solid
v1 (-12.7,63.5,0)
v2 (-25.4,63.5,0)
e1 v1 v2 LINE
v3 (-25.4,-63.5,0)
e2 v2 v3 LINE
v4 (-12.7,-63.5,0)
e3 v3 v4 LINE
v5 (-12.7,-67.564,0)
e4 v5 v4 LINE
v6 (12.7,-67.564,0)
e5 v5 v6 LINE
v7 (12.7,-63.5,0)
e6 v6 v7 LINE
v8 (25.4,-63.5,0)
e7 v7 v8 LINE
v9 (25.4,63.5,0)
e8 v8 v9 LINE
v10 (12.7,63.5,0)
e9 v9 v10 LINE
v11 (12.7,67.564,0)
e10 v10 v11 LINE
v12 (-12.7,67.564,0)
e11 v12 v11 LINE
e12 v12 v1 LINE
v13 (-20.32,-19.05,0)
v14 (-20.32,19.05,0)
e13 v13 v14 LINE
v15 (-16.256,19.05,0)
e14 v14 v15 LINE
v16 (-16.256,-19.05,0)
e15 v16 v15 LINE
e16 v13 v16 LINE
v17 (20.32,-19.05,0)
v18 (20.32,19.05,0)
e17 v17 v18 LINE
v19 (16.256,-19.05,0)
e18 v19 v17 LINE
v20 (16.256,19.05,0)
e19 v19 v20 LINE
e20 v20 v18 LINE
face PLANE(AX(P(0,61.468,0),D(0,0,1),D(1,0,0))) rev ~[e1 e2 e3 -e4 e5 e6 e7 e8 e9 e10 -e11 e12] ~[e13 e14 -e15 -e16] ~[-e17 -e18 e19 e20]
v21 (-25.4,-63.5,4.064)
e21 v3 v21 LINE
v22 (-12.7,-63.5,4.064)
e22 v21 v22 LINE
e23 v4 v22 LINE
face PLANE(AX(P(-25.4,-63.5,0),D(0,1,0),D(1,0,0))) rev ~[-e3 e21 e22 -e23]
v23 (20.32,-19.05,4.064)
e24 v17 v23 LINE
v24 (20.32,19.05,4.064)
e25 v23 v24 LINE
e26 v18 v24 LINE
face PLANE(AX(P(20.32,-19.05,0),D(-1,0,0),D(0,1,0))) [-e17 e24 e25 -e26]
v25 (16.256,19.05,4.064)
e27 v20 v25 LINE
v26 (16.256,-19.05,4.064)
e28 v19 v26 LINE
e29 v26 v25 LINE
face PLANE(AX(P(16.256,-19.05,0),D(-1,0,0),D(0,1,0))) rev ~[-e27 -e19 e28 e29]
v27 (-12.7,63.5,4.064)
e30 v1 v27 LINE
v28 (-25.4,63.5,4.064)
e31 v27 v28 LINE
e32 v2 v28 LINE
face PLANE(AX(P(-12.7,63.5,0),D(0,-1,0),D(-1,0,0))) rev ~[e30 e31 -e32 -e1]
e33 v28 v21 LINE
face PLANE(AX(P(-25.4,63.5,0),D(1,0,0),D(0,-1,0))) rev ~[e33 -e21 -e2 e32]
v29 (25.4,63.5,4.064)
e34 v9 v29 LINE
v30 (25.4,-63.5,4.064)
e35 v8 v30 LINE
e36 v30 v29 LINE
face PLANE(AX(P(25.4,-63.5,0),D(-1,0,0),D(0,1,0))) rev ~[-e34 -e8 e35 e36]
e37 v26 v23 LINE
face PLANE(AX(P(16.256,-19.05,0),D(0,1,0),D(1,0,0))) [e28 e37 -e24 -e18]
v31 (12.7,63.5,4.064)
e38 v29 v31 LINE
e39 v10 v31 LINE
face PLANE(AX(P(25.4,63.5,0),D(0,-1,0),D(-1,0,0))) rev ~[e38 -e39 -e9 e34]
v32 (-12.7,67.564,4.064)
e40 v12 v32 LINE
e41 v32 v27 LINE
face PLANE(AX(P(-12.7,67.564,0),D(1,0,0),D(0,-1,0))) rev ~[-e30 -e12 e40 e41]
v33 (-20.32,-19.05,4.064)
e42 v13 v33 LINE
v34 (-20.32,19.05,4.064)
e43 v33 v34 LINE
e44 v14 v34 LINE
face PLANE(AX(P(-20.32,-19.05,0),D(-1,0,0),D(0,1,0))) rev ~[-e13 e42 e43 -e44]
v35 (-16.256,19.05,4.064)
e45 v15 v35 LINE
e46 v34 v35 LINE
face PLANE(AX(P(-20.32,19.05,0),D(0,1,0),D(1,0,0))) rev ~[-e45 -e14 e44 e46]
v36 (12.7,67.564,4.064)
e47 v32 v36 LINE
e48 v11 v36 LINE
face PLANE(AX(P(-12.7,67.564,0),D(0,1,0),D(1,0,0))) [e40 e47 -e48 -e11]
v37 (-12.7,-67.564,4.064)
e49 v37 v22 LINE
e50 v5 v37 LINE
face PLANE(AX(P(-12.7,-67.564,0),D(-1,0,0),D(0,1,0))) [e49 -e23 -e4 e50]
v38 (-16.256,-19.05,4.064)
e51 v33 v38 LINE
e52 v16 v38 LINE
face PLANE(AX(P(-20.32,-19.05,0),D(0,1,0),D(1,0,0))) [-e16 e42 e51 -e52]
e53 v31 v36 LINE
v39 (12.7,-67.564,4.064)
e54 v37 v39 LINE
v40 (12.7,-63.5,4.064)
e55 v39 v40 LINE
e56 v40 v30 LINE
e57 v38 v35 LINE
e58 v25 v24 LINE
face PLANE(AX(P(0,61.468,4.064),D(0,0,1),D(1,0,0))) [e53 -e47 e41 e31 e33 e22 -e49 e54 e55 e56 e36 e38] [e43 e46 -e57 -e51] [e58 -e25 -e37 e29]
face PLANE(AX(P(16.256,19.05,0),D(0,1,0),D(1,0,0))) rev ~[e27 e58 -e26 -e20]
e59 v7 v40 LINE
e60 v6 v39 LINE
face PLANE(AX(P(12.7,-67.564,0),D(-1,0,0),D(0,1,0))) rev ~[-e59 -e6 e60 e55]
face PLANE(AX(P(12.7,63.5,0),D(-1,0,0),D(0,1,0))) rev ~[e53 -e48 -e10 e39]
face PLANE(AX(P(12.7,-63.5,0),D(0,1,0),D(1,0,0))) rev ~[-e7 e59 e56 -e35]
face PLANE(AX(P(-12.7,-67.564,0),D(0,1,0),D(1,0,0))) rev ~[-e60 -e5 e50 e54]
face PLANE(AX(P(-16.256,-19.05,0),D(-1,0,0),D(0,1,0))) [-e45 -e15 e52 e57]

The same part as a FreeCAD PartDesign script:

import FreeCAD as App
import Part
import Sketcher
Q = App.Units.Quantity

doc = App.newDocument("Part")
body = doc.addObject("PartDesign::Body", "Body")

# Sketch on XY plane
sketch1 = body.newObject("Sketcher::SketchObject", "Sketch")
sketch1.AttachmentSupport = (doc.getObject("XY_Plane"), [""])
sketch1.MapMode = "FlatFace"
sketch1.addGeometry([
    Part.LineSegment(App.Vector(12.7, 63.5, 0), App.Vector(12.7, 67.564, 0)),  # 0
    Part.LineSegment(App.Vector(12.7, 67.564, 0), App.Vector(-12.7, 67.564, 0)),  # 1
    Part.LineSegment(App.Vector(-12.7, 67.564, 0), App.Vector(-12.7, 63.5, 0)),  # 2
    Part.LineSegment(App.Vector(-12.7, 63.5, 0), App.Vector(-25.4, 63.5, 0)),  # 3
    Part.LineSegment(App.Vector(-25.4, 63.5, 0), App.Vector(-25.4, -63.5, 0)),  # 4
    Part.LineSegment(App.Vector(-25.4, -63.5, 0), App.Vector(-12.7, -63.5, 0)),  # 5
    Part.LineSegment(App.Vector(-12.7, -63.5, 0), App.Vector(-12.7, -67.564, 0)),  # 6
    Part.LineSegment(App.Vector(-12.7, -67.564, 0), App.Vector(12.7, -67.564, 0)),  # 7
    Part.LineSegment(App.Vector(12.7, -67.564, 0), App.Vector(12.7, -63.5, 0)),  # 8
    Part.LineSegment(App.Vector(12.7, -63.5, 0), App.Vector(25.4, -63.5, 0)),  # 9
    Part.LineSegment(App.Vector(25.4, -63.5, 0), App.Vector(25.4, 63.5, 0)),  # 10
    Part.LineSegment(App.Vector(25.4, 63.5, 0), App.Vector(12.7, 63.5, 0)),  # 11
    Part.LineSegment(App.Vector(-16.256, -19.05, 0), App.Vector(-20.32, -19.05, 0)),  # 12
    Part.LineSegment(App.Vector(-20.32, -19.05, 0), App.Vector(-20.32, 19.05, 0)),  # 13
    Part.LineSegment(App.Vector(-20.32, 19.05, 0), App.Vector(-16.256, 19.05, 0)),  # 14
    Part.LineSegment(App.Vector(-16.256, 19.05, 0), App.Vector(-16.256, -19.05, 0)),  # 15
    Part.LineSegment(App.Vector(20.32, -19.05, 0), App.Vector(16.256, -19.05, 0)),  # 16
    Part.LineSegment(App.Vector(16.256, -19.05, 0), App.Vector(16.256, 19.05, 0)),  # 17
    Part.LineSegment(App.Vector(16.256, 19.05, 0), App.Vector(20.32, 19.05, 0)),  # 18
    Part.LineSegment(App.Vector(20.32, 19.05, 0), App.Vector(20.32, -19.05, 0)),  # 19
], False)
sketch1.addConstraint([
    Sketcher.Constraint("Coincident", 0, 2, 1, 1),
    Sketcher.Constraint("Coincident", 1, 2, 2, 1),
    Sketcher.Constraint("Coincident", 2, 2, 3, 1),
    Sketcher.Constraint("Coincident", 3, 2, 4, 1),
    Sketcher.Constraint("Coincident", 4, 2, 5, 1),
    Sketcher.Constraint("Coincident", 5, 2, 6, 1),
    Sketcher.Constraint("Coincident", 6, 2, 7, 1),
    Sketcher.Constraint("Coincident", 7, 2, 8, 1),
    Sketcher.Constraint("Coincident", 8, 2, 9, 1),
    Sketcher.Constraint("Coincident", 9, 2, 10, 1),
    Sketcher.Constraint("Coincident", 10, 2, 11, 1),
    Sketcher.Constraint("Coincident", 11, 2, 0, 1),
    Sketcher.Constraint("Coincident", 12, 2, 13, 1),
    Sketcher.Constraint("Coincident", 13, 2, 14, 1),
    Sketcher.Constraint("Coincident", 14, 2, 15, 1),
    Sketcher.Constraint("Coincident", 15, 2, 12, 1),
    Sketcher.Constraint("Coincident", 16, 2, 17, 1),
    Sketcher.Constraint("Coincident", 17, 2, 18, 1),
    Sketcher.Constraint("Coincident", 18, 2, 19, 1),
    Sketcher.Constraint("Coincident", 19, 2, 16, 1),
    Sketcher.Constraint("Vertical", 0),
    Sketcher.Constraint("Horizontal", 1),
    Sketcher.Constraint("Vertical", 2),
    Sketcher.Constraint("Horizontal", 3),
    Sketcher.Constraint("Vertical", 4),
    Sketcher.Constraint("Horizontal", 5),
    Sketcher.Constraint("Vertical", 6),
    Sketcher.Constraint("Horizontal", 7),
    Sketcher.Constraint("Vertical", 8),
    Sketcher.Constraint("Horizontal", 9),
    Sketcher.Constraint("Vertical", 10),
    Sketcher.Constraint("Horizontal", 11),
    Sketcher.Constraint("Horizontal", 12),
    Sketcher.Constraint("Vertical", 13),
    Sketcher.Constraint("Horizontal", 14),
    Sketcher.Constraint("Vertical", 15),
    Sketcher.Constraint("Horizontal", 16),
    Sketcher.Constraint("Vertical", 17),
    Sketcher.Constraint("Horizontal", 18),
    Sketcher.Constraint("Vertical", 19),
    Sketcher.Constraint("Symmetric", 0, 2, 6, 2, -1, 1),
    Sketcher.Constraint("Symmetric", 2, 2, 8, 2, -1, 1),
    Sketcher.Constraint("Symmetric", 4, 2, 10, 2, -1, 1),
    Sketcher.Constraint("Symmetric", 14, 2, 16, 2, -1, 1),
    Sketcher.Constraint("Symmetric", 12, 2, 18, 2, -1, 1),
    Sketcher.Constraint("Symmetric", 5, 2, 8, 2, -2),
    Sketcher.Constraint("Horizontal", 15, 2, 16, 2),
    Sketcher.Constraint("Equal", 18, 0),
    Sketcher.Constraint("DistanceX", 1, 2, 1, 1, Q("1 in")),
    Sketcher.Constraint("DistanceY", 4, 2, 4, 1, Q("5 in")),
    Sketcher.Constraint("DistanceX", 3, 2, 3, 1, Q("0.5 in")),
    Sketcher.Constraint("DistanceY", 13, 1, 13, 2, Q("1.5 in")),
    Sketcher.Constraint("DistanceX", 12, 2, 12, 1, Q("0.16 in")),
    Sketcher.Constraint("DistanceX", 12, 2, -1, 1, Q("0.8 in")),
])
pad1 = body.newObject("PartDesign::Pad", "Pad")
pad1.Profile = sketch1
pad1.Length = Q("0.16 in")

doc.recompute()
